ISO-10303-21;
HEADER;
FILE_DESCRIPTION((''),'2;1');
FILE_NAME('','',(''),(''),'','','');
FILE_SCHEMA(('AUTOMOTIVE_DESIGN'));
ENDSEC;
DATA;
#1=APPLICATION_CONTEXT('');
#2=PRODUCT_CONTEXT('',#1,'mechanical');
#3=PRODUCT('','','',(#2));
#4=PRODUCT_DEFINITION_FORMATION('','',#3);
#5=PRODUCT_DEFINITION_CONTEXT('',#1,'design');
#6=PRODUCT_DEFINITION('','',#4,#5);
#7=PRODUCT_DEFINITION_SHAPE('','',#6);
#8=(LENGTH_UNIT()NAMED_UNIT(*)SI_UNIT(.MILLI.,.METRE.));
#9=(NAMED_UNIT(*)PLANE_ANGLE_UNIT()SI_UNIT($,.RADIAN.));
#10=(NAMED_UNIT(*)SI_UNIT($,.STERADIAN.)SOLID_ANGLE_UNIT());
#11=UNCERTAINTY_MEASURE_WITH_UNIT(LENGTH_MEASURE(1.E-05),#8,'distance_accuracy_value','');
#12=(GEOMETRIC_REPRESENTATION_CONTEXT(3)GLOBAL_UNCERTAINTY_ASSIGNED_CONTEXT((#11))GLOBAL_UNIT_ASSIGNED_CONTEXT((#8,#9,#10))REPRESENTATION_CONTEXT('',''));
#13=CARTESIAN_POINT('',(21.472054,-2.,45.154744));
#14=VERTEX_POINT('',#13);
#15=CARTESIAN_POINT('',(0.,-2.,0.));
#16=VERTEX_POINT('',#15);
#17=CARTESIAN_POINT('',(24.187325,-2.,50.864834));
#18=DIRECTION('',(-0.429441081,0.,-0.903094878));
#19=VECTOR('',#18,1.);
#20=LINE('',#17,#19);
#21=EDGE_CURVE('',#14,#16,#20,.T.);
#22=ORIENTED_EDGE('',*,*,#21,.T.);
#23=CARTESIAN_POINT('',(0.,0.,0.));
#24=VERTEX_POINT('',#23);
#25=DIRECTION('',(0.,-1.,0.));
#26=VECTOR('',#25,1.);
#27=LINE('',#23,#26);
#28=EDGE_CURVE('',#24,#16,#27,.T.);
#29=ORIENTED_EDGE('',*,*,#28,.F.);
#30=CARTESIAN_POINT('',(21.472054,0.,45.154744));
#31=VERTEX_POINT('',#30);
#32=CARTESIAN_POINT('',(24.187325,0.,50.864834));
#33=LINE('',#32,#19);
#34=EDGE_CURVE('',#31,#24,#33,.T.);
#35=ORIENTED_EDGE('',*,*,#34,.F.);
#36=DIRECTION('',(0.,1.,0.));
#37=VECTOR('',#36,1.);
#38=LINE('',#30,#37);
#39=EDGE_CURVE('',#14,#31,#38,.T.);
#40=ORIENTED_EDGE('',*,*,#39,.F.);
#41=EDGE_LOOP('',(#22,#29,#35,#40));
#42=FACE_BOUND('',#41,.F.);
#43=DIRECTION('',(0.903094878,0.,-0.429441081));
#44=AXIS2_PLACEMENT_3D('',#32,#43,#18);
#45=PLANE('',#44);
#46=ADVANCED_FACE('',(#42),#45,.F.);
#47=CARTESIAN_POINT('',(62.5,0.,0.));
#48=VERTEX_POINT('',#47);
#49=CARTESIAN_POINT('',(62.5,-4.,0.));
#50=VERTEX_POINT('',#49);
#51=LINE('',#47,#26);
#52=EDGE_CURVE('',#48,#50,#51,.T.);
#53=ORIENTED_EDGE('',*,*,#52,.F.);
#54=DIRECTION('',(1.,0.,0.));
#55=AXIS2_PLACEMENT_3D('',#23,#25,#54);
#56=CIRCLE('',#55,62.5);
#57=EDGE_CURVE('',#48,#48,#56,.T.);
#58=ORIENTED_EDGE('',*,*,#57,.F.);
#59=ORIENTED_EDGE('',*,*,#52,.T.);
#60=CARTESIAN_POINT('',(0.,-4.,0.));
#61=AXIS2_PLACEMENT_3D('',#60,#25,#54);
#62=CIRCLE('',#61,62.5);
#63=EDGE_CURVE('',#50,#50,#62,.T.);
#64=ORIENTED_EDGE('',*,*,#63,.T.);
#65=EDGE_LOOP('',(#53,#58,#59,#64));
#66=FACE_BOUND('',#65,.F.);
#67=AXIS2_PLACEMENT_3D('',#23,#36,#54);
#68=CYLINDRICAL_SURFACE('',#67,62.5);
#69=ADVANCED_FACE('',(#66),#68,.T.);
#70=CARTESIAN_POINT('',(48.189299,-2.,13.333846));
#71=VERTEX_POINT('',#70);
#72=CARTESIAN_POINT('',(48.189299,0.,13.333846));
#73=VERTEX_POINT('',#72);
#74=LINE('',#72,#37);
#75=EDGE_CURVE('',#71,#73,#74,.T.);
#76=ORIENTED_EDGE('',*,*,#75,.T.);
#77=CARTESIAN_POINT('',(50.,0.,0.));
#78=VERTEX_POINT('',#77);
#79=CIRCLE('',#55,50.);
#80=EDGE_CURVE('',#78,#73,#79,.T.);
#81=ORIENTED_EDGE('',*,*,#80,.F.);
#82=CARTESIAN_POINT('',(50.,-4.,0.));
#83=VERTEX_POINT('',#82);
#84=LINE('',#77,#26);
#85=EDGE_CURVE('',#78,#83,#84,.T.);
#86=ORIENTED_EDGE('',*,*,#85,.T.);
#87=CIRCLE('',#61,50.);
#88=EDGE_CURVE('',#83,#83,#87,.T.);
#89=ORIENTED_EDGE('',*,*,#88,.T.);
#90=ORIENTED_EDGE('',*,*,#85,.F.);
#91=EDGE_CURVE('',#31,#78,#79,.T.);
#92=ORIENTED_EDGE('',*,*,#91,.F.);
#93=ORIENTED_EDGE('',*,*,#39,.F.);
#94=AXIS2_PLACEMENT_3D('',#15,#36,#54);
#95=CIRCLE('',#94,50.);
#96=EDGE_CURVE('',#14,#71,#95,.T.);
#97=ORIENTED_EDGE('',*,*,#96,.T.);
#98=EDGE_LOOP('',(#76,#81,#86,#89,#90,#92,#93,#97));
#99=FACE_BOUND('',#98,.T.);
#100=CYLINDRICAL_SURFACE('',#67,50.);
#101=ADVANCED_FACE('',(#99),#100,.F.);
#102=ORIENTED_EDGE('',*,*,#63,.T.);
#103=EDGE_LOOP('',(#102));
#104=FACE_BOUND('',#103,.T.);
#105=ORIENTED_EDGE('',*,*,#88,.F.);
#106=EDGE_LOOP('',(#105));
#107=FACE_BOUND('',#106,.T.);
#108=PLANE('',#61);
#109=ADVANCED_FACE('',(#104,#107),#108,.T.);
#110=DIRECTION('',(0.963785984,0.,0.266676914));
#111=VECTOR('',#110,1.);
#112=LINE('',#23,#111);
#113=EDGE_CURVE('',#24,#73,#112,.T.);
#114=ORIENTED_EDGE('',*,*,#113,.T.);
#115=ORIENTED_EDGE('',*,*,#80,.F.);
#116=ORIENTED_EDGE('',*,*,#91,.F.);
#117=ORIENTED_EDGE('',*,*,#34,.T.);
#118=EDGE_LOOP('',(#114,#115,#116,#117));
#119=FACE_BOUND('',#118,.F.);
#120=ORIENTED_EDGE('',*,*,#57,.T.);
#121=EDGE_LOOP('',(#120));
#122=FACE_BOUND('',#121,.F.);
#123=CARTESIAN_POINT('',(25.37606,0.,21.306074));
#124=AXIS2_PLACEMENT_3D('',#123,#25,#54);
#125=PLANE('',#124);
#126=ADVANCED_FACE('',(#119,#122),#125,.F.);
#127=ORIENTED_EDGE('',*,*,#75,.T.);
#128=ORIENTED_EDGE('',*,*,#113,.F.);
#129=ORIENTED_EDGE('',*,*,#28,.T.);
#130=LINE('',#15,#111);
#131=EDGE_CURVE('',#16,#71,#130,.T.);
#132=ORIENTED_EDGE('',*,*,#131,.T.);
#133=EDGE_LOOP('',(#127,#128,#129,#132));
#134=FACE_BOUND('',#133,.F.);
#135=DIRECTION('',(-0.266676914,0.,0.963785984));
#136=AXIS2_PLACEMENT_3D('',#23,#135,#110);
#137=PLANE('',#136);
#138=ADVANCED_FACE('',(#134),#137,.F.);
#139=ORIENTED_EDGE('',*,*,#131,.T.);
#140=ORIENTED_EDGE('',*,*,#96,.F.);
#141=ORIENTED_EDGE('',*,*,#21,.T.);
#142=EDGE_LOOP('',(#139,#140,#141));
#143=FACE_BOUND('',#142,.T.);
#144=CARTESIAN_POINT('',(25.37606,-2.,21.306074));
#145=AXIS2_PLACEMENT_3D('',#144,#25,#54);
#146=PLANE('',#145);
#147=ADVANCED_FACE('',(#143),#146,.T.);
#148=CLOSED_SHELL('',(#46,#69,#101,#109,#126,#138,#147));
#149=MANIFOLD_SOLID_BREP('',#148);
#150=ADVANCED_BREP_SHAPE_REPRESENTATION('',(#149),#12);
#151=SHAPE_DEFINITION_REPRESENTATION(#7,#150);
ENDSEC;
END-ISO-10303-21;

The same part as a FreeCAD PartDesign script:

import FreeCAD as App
import Part
import Sketcher


def add_polygon(sketch, points):
    """Adds a closed chain of lines whose ends are joined by coincident constraints."""
    first, n = sketch.GeometryCount, len(points)
    for a, b in zip(points, points[1:] + points[:1]):
        sketch.addGeometry(Part.LineSegment(App.Vector(*a, 0), App.Vector(*b, 0)), False)
    for i in range(n):
        sketch.addConstraint(Sketcher.Constraint("Coincident", first + i, 2, first + (i + 1) % n, 1))

doc = App.newDocument("Part")
body = doc.addObject("PartDesign::Body", "Body")

sketch1 = doc.addObject("Sketcher::SketchObject", "Sketch")
body.addObject(sketch1)
sketch1.AttachmentSupport = (doc.XZ_Plane, [""])
sketch1.MapMode = "FlatFace"
sketch1.addGeometry(Part.Circle(App.Vector(0, 0, 0), App.Vector(0, 0, 1), 62.5), False)
sketch1.addGeometry(Part.Circle(App.Vector(0, 0, 0), App.Vector(0, 0, 1), 50), False)
sketch1.addConstraint(Sketcher.Constraint("Coincident", 0, 3, -1, 1))
sketch1.addConstraint(Sketcher.Constraint("Coincident", 1, 3, -1, 1))
sketch1.addConstraint(Sketcher.Constraint("Diameter", 0, 125.0))
sketch1.addConstraint(Sketcher.Constraint("Diameter", 1, 100.0))
pad1 = doc.addObject("PartDesign::Pad", "Pad")
body.addObject(pad1)
pad1.Profile = sketch1
pad1.Length = 4

sketch2 = doc.addObject("Sketcher::SketchObject", "Sketch001")
body.addObject(sketch2)
sketch2.AttachmentSupport = (doc.XZ_Plane, [""])
sketch2.MapMode = "FlatFace"
add_polygon(sketch2, [(0, 0), (54.283127, 15.019991), (24.187325, 50.864834)])
sketch2.addConstraint(Sketcher.Constraint("Coincident", 2, 2, -1, 1))
sketch2.addConstraint(Sketcher.Constraint("Equal", 0, 2))
sketch2.addConstraint(Sketcher.Constraint("Distance", 0, 56.322802))
sketch2.addConstraint(Sketcher.Constraint("DistanceX", 1, 2, 0, 2, 30.095802))
sketch2.addConstraint(Sketcher.Constraint("DistanceY", -1, 1, 0, 2, 15.019991))
pad2 = doc.addObject("PartDesign::Pad", "Pad001")
body.addObject(pad2)
pad2.Profile = sketch2
pad2.Length = 2

doc.recompute()
